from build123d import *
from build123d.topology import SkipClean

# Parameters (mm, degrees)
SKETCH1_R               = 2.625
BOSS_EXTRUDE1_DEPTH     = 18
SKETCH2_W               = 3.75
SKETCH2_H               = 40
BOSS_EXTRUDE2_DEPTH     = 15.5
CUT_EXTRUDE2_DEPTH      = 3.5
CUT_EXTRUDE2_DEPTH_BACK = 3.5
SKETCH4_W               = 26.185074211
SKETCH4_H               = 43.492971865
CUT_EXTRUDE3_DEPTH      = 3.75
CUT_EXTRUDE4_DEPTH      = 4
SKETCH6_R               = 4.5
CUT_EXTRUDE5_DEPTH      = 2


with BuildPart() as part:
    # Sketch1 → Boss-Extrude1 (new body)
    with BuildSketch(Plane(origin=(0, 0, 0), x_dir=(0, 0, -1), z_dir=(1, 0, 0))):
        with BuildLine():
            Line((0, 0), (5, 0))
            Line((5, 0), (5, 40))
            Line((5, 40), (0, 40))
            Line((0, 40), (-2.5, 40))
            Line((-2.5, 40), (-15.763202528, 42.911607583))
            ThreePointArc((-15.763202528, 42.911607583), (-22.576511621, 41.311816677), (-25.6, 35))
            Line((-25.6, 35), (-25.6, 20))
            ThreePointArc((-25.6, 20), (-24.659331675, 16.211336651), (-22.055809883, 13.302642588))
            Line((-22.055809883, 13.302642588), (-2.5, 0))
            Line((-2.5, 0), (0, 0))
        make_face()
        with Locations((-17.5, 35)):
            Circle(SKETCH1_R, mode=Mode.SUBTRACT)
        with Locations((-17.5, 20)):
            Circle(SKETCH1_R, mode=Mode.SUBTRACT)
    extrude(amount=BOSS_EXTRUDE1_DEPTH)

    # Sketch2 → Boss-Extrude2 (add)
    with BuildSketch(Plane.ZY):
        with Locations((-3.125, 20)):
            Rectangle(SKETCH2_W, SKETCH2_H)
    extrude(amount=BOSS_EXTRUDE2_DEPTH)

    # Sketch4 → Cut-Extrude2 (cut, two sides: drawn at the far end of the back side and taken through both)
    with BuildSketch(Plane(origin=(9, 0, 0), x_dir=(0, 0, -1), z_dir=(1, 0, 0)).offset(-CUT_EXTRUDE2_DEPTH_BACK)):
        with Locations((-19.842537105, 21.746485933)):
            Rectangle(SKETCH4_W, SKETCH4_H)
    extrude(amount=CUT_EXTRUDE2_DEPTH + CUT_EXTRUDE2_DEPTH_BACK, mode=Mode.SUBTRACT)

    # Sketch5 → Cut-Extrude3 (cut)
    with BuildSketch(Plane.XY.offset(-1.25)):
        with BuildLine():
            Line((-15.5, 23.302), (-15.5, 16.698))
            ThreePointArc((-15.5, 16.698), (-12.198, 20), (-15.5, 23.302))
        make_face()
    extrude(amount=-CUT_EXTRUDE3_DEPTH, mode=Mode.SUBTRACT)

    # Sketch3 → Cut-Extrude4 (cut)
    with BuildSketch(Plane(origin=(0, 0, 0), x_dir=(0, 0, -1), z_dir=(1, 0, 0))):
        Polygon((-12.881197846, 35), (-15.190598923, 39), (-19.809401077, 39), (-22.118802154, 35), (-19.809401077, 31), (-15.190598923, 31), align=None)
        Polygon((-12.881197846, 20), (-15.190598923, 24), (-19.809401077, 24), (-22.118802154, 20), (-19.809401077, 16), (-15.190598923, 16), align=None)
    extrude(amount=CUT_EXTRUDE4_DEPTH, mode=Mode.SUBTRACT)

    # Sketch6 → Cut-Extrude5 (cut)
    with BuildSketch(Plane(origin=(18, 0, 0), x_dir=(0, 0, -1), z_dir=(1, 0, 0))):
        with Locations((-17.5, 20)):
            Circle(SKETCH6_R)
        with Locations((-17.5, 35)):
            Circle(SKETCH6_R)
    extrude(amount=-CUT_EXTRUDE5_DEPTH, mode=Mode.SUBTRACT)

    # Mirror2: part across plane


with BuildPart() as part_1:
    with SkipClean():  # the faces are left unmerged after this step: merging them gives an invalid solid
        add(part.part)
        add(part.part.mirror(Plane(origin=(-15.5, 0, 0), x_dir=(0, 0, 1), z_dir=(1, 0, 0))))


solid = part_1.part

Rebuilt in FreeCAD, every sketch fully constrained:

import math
import FreeCAD as App
import Part
import Sketcher

V = App.Vector
Q = App.Units.Quantity


def add_polygon(sketch, points):
    """Adds a closed chain of lines whose ends are joined by coincident constraints."""
    first, n = sketch.GeometryCount, len(points)
    for a, b in zip(points, points[1:] + points[:1]):
        sketch.addGeometry(Part.LineSegment(App.Vector(*a, 0), App.Vector(*b, 0)), False)
    for i in range(n):
        sketch.addConstraint(Sketcher.Constraint("Coincident", first + i, 2, first + (i + 1) % n, 1))

doc = App.newDocument("Part")
body = doc.addObject("PartDesign::Body", "Body")

# Sketch on YZ plane
sketch1 = body.newObject("Sketcher::SketchObject", "Sketch")
sketch1.AttachmentSupport = (doc.getObject("YZ_Plane"), [""])
sketch1.MapMode = "FlatFace"
sketch1.addGeometry([
    Part.LineSegment(V(0, -5, 0), V(40, -5, 0)),  # 0
    Part.LineSegment(V(40, -5, 0), V(40, 2.5, 0)),  # 1
    Part.LineSegment(V(40, 2.5, 0), V(42.911608, 15.763203, 0)),  # 2
    Part.ArcOfCircle(Part.Circle(V(35, 17.5, 0), V(0, 0, 1), 8.1), math.radians(-12.381469), math.radians(90)),  # 3
    Part.LineSegment(V(35, 25.6, 0), V(20, 25.6, 0)),  # 4
    Part.ArcOfCircle(Part.Circle(V(20, 17.5, 0), V(0, 0, 1), 8.1), math.radians(90), math.radians(145.774899)),  # 5
    Part.LineSegment(V(13.302643, 22.05581, 0), V(0, 2.5, 0)),  # 6
    Part.LineSegment(V(0, 2.5, 0), V(0, -5, 0)),  # 7
    Part.Circle(V(20, 17.5, 0), V(0, 0, 1), 2.625),  # 8
    Part.Circle(V(35, 17.5, 0), V(0, 0, 1), 2.625),  # 9
], False)
sketch1.addConstraint([
    Sketcher.Constraint("Coincident", 0, 2, 1, 1),
    Sketcher.Constraint("Coincident", 1, 2, 2, 1),
    Sketcher.Constraint("Tangent", 2, 2, 3, 1),
    Sketcher.Constraint("Tangent", 3, 2, 4, 1),
    Sketcher.Constraint("Tangent", 4, 2, 5, 1),
    Sketcher.Constraint("Tangent", 5, 2, 6, 1),
    Sketcher.Constraint("Coincident", 6, 2, 7, 1),
    Sketcher.Constraint("Coincident", 7, 2, 0, 1),
    Sketcher.Constraint("Horizontal", 0),
    Sketcher.Constraint("Vertical", 1),
    Sketcher.Constraint("Horizontal", 4),
    Sketcher.Constraint("Vertical", 7),
    Sketcher.Constraint("Coincident", 8, 3, 5, 3),
    Sketcher.Constraint("Coincident", 9, 3, 3, 3),
    Sketcher.Constraint("Equal", 3, 5),
    Sketcher.Constraint("Equal", 8, 9),
    Sketcher.Constraint("PointOnObject", 6, 2, -2),
    Sketcher.Constraint("Horizontal", 1, 2, 6, 2),
    Sketcher.Constraint("Radius", 3, 8.1),
    Sketcher.Constraint("Diameter", 8, 5.25),
    Sketcher.Constraint("DistanceX", 0, 1, 0, 2, 40.0),
    Sketcher.Constraint("DistanceX", 4, 2, 4, 1, 15.0),
    Sketcher.Constraint("DistanceY", 1, 1, 1, 2, 7.5),
    Sketcher.Constraint("DistanceX", -1, 1, 3, 3, 35.0),
    Sketcher.Constraint("DistanceY", 0, 2, -1, 1, 5.0),
    Sketcher.Constraint("DistanceY", 1, 2, 3, 3, 15.0),
])
pad1 = body.newObject("PartDesign::Pad", "Pad")
pad1.Profile = sketch1
pad1.Length = 18

# Sketch on YZ plane
sketch2 = body.newObject("Sketcher::SketchObject", "Sketch001")
sketch2.AttachmentSupport = (doc.getObject("YZ_Plane"), [""])
sketch2.MapMode = "FlatFace"
add_polygon(sketch2, [(40, -5), (0, -5), (0, -1.25), (40, -1.25)])  # lines 0-3
sketch2.addConstraint([
    Sketcher.Constraint("Horizontal", 0),
    Sketcher.Constraint("Vertical", 1),
    Sketcher.Constraint("Horizontal", 2),
    Sketcher.Constraint("Vertical", 3),
    Sketcher.Constraint("PointOnObject", 0, 2, -2),
    Sketcher.Constraint("DistanceX", 0, 2, 0, 1, 40.0),
    Sketcher.Constraint("DistanceY", 0, 2, -1, 1, 5.0),
    Sketcher.Constraint("DistanceY", 1, 1, 1, 2, 3.75),
])
pad2 = body.newObject("PartDesign::Pad", "Pad001")
pad2.Profile = sketch2
pad2.Length = 15.5
pad2.Reversed = True

# Sketch on YZ plane
sketch3 = body.newObject("Sketcher::SketchObject", "Sketch002")
sketch3.AttachmentSupport = (doc.getObject("YZ_Plane"), [""])
sketch3.MapMode = "FlatFace"
sketch3.AttachmentOffset = App.Placement(V(0, 0, 9), App.Rotation())
add_polygon(sketch3, [(43.492972, 32.935074), (0, 32.935074), (0, 6.75), (43.492972, 6.75)])  # lines 0-3
sketch3.addConstraint([
    Sketcher.Constraint("Horizontal", 0),
    Sketcher.Constraint("Vertical", 1),
    Sketcher.Constraint("Horizontal", 2),
    Sketcher.Constraint("Vertical", 3),
    Sketcher.Constraint("PointOnObject", 0, 2, -2),
    Sketcher.Constraint("DistanceY", -1, 1, 1, 2, 6.75),
    Sketcher.Constraint("DistanceX", 0, 2, 0, 1, 43.492972),
    Sketcher.Constraint("DistanceY", 1, 2, 1, 1, 26.185074),
])
pocket1 = body.newObject("PartDesign::Pocket", "Pocket")
pocket1.Profile = sketch3
pocket1.Type = "TwoLengths"
pocket1.Length = 3.5
pocket1.Length2 = 3.5
pocket1.Reversed = True

# Sketch on XY plane
sketch4 = body.newObject("Sketcher::SketchObject", "Sketch003")
sketch4.AttachmentSupport = (doc.getObject("XY_Plane"), [""])
sketch4.MapMode = "FlatFace"
sketch4.AttachmentOffset = App.Placement(V(0, 0, -1.25), App.Rotation())
sketch4.addGeometry([
    Part.LineSegment(V(-15.5, 23.302, 0), V(-15.5, 16.698, 0)),
    Part.ArcOfCircle(Part.Circle(V(-15.5, 20, 0), V(0, 0, 1), 3.302), math.radians(-90), math.radians(90)),
], False)
sketch4.addConstraint([
    Sketcher.Constraint("Coincident", 0, 1, 1, 2),
    Sketcher.Constraint("Coincident", 1, 1, 0, 2),
    Sketcher.Constraint("Vertical", 0),
    Sketcher.Constraint("Vertical", 1, 3, 0, 1),
    Sketcher.Constraint("DistanceY", -1, 1, 1, 3, 20.0),
    Sketcher.Constraint("Radius", 1, 3.302),
    Sketcher.Constraint("DistanceX", 1, 3, -1, 1, 15.5),
])
pocket2 = body.newObject("PartDesign::Pocket", "Pocket001")
pocket2.Profile = sketch4
pocket2.Length = 3.75

# Sketch on YZ plane
sketch5 = body.newObject("Sketcher::SketchObject", "Sketch004")
sketch5.AttachmentSupport = (doc.getObject("YZ_Plane"), [""])
sketch5.MapMode = "FlatFace"
add_polygon(sketch5, [(35, 12.881198), (39, 15.190599), (39, 19.809401), (35, 22.118802), (31, 19.809401), (31, 15.190599)])  # lines 0-5
add_polygon(sketch5, [(20, 12.881198), (24, 15.190599), (24, 19.809401), (20, 22.118802), (16, 19.809401), (16, 15.190599)])  # lines 6-11
sketch5.addConstraint([
    Sketcher.Constraint("Vertical", 1),
    Sketcher.Constraint("Vertical", 4),
    Sketcher.Constraint("Vertical", 7),
    Sketcher.Constraint("Vertical", 10),
    Sketcher.Constraint("Parallel", 0, 3),
    Sketcher.Constraint("Parallel", 2, 5),
    Sketcher.Constraint("Parallel", 3, 6),
    Sketcher.Constraint("Parallel", 5, 8),
    Sketcher.Constraint("Parallel", 6, 9),
    Sketcher.Constraint("Parallel", 8, 11),
    Sketcher.Constraint("Horizontal", 1, 2, 3, 2),
    Sketcher.Constraint("Horizontal", 0, 2, 4, 2),
    Sketcher.Constraint("Horizontal", 4, 2, 6, 2),
    Sketcher.Constraint("Horizontal", 3, 2, 7, 2),
    Sketcher.Constraint("Horizontal", 2, 2, 8, 2),
    Sketcher.Constraint("Horizontal", 7, 2, 9, 2),
    Sketcher.Constraint("Horizontal", 6, 2, 10, 2),
    Sketcher.Constraint("Vertical", 2, 2, 5, 2),
    Sketcher.Constraint("Angle", 0, Q("30 deg")),
    Sketcher.Constraint("DistanceX", -1, 1, 0, 2, 39.0),
    Sketcher.Constraint("DistanceX", -1, 1, 2, 2, 35.0),
    Sketcher.Constraint("DistanceX", -1, 1, 6, 2, 24.0),
    Sketcher.Constraint("DistanceY", -1, 1, 0, 2, 15.190599),
    Sketcher.Constraint("DistanceY", -1, 1, 1, 2, 19.809401),
])
pocket3 = body.newObject("PartDesign::Pocket", "Pocket002")
pocket3.Profile = sketch5
pocket3.Length = 4
pocket3.Reversed = True

# Sketch on YZ plane
sketch6 = body.newObject("Sketcher::SketchObject", "Sketch005")
sketch6.AttachmentSupport = (doc.getObject("YZ_Plane"), [""])
sketch6.MapMode = "FlatFace"
sketch6.AttachmentOffset = App.Placement(V(0, 0, 18), App.Rotation())
sketch6.addGeometry([
    Part.Circle(V(20, 17.5, 0), V(0, 0, 1), 4.5),
    Part.Circle(V(35, 17.5, 0), V(0, 0, 1), 4.5),
], False)
sketch6.addConstraint([
    Sketcher.Constraint("Equal", 0, 1),
    Sketcher.Constraint("Horizontal", 0, 3, 1, 3),
    Sketcher.Constraint("Diameter", 0, 9.0),
    Sketcher.Constraint("DistanceX", -1, 1, 0, 3, 20.0),
    Sketcher.Constraint("DistanceX", -1, 1, 1, 3, 35.0),
    Sketcher.Constraint("DistanceY", -1, 1, 0, 3, 17.5),
])
pocket4 = body.newObject("PartDesign::Pocket", "Pocket003")
pocket4.Profile = sketch6
pocket4.Length = 2
body2 = doc.addObject("PartDesign::Body", "Body001")
doc.recompute()

body2.BaseFeature = body
doc.recompute()

mirroring = doc.addObject("Part::Mirroring", "Mirroring")
mirroring.Source = body
mirroring.Base = V(-15.5, 0, 0)
mirroring.Normal = V(1, 0, 0)
body3 = doc.addObject("PartDesign::Body", "Body002")
body3.BaseFeature = mirroring
boolean = body2.newObject("PartDesign::Boolean", "Boolean")
boolean.Type = "Fuse"
boolean.addObjects([body3])
doc.recompute()
mirroring.Visibility = False

doc.recompute()
